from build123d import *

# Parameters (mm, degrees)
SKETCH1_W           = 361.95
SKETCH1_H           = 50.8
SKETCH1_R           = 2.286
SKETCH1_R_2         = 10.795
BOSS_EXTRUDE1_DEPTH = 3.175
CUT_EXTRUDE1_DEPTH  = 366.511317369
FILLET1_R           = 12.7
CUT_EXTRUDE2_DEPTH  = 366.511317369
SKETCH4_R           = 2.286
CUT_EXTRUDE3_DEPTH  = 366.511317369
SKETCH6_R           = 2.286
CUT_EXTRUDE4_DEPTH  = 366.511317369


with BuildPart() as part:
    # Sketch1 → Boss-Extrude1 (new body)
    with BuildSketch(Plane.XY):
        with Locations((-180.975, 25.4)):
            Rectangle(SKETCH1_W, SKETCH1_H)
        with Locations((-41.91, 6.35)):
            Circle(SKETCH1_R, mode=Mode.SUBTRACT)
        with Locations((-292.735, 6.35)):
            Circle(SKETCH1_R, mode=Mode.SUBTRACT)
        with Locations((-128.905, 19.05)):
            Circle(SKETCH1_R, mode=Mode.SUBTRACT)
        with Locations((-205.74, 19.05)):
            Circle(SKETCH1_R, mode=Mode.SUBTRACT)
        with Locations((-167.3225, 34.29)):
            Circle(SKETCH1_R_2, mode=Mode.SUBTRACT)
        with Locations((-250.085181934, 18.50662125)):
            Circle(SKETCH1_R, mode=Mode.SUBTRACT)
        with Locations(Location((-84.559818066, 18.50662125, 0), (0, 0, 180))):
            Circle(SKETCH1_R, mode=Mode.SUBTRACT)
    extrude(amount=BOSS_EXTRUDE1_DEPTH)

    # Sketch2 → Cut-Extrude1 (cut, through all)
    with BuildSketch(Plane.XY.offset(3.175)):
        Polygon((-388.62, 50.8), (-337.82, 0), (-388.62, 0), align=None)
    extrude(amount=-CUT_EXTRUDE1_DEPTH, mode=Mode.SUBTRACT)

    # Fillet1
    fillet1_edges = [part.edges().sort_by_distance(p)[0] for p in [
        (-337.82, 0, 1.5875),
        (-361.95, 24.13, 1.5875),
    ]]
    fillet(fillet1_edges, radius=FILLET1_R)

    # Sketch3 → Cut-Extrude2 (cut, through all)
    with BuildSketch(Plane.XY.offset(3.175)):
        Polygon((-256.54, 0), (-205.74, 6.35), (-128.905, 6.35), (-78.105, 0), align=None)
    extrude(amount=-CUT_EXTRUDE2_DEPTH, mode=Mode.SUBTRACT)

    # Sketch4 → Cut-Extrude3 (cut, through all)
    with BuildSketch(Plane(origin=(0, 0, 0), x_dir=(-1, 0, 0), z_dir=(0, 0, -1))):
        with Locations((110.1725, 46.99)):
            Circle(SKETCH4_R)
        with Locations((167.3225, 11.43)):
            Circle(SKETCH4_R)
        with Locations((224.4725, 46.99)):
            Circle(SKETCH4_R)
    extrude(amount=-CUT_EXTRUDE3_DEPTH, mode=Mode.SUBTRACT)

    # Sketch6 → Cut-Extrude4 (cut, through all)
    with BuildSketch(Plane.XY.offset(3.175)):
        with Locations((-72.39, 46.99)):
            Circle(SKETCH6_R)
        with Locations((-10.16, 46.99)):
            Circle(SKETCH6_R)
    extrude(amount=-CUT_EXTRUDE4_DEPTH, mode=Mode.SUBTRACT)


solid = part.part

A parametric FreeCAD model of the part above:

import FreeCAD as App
import Part
import Sketcher
from FreeCAD import Vector
Q = App.Units.Quantity


def edges_at(feature, points):
    """Names of the edges that pass closest to the given points."""
    edges = feature.Shape.Edges
    near = lambda p: min(range(len(edges)), key=lambda i: edges[i].distToShape(Part.Vertex(*p))[0])
    return sorted({f"Edge{near(p) + 1}" for p in points})


def add_polygon(sketch, points):
    """Adds a closed chain of lines whose ends are joined by coincident constraints."""
    first, n = sketch.GeometryCount, len(points)
    for a, b in zip(points, points[1:] + points[:1]):
        sketch.addGeometry(Part.LineSegment(App.Vector(*a, 0), App.Vector(*b, 0)), False)
    for i in range(n):
        sketch.addConstraint(Sketcher.Constraint("Coincident", first + i, 2, first + (i + 1) % n, 1))

doc = App.newDocument("Part")
body = doc.addObject("PartDesign::Body", "Body")

# Sketch on XY plane
sketch1 = body.newObject("Sketcher::SketchObject", "Sketch")
sketch1.AttachmentSupport = (doc.getObject("XY_Plane"), [""])
sketch1.MapMode = "FlatFace"
add_polygon(sketch1, [(-361.9, 50.8), (-361.9, 0), (0, 0), (0, 50.8)])  # lines 0-3
sketch1.addGeometry(Part.Circle(Vector(-292.7, 6.3, 0), Vector(0, 0, 1), 2.3), False)  # 4
sketch1.addGeometry(Part.Circle(Vector(-250.1, 18.5, 0), Vector(0, 0, 1), 2.3), False)  # 5
sketch1.addGeometry(Part.Circle(Vector(-205.7, 19.1, 0), Vector(0, 0, 1), 2.3), False)  # 6
sketch1.addGeometry(Part.Circle(Vector(-41.9, 6.3, 0), Vector(0, 0, 1), 2.3), False)  # 7
sketch1.addGeometry(Part.Circle(Vector(-128.9, 19.1, 0), Vector(0, 0, 1), 2.3), False)  # 8
sketch1.addGeometry(Part.Circle(Vector(-84.6, 18.5, 0), Vector(0, 0, 1), 2.3), False)  # 9
sketch1.addGeometry(Part.Circle(Vector(-167.3, 34.3, 0), Vector(0, 0, 1), 10.8), False)  # 10
sketch1.addConstraint([
    Sketcher.Constraint("Vertical", 0),
    Sketcher.Constraint("Horizontal", 1),
    Sketcher.Constraint("Vertical", 2),
    Sketcher.Constraint("Horizontal", 3),
    Sketcher.Constraint("Coincident", 1, 2, -1, 1),
    Sketcher.Constraint("Equal", 4, 5),
    Sketcher.Constraint("Equal", 5, 6),
    Sketcher.Constraint("Equal", 6, 7),
    Sketcher.Constraint("Equal", 7, 8),
    Sketcher.Constraint("Equal", 8, 9),
    Sketcher.Constraint("Horizontal", 4, 3, 7, 3),
    Sketcher.Constraint("Horizontal", 6, 3, 8, 3),
    Sketcher.Constraint("Horizontal", 5, 3, 9, 3),
    Sketcher.Constraint("Diameter", 4, Q("0.18 in")),
    Sketcher.Constraint("Diameter", 10, Q("0.85 in")),
    Sketcher.Constraint("DistanceY", 0, 2, 0, 1, Q("2 in")),
    Sketcher.Constraint("DistanceX", 1, 1, 1, 2, Q("14.25 in")),
    Sketcher.Constraint("DistanceX", 6, 3, -1, 1, Q("8.1 in")),
    Sketcher.Constraint("DistanceY", 4, 3, 6, 3, Q("0.5 in")),
    Sketcher.Constraint("DistanceY", 8, 3, 10, 3, Q("0.6 in")),
    Sketcher.Constraint("DistanceY", -1, 1, 4, 3, Q("0.25 in")),
    Sketcher.Constraint("DistanceX", 7, 3, -1, 1, Q("1.65 in")),
    Sketcher.Constraint("DistanceX", 4, 3, 8, 3, Q("6.45 in")),
    Sketcher.Constraint("DistanceX", 4, 3, -1, 1, Q("11.525 in")),
    Sketcher.Constraint("DistanceX", 10, 3, 7, 3, Q("4.9375 in")),
    Sketcher.Constraint("DistanceX", 5, 3, -1, 1, Q("250.085182 mm")),
    Sketcher.Constraint("DistanceY", -1, 1, 5, 3, Q("18.506621 mm")),
    Sketcher.Constraint("DistanceX", 9, 3, -1, 1, Q("84.559818 mm")),
])
pad1 = body.newObject("PartDesign::Pad", "Pad")
pad1.Profile = sketch1
pad1.Length = Q("0.125 in")

# Sketch on XY plane
sketch2 = body.newObject("Sketcher::SketchObject", "Sketch001")
sketch2.AttachmentSupport = (doc.getObject("XY_Plane"), [""])
sketch2.MapMode = "FlatFace"
sketch2.AttachmentOffset = App.Placement(Vector(0, 0, 0.125 * 25.4), App.Rotation())
add_polygon(sketch2, [(-338, 0), (-389, 51), (-389, 0)])  # lines 0-2
sketch2.addConstraint([
    Sketcher.Constraint("Vertical", 1),
    Sketcher.Constraint("Horizontal", 2),
    Sketcher.Constraint("PointOnObject", 1, 2, -1),
    Sketcher.Constraint("Equal", 2, 1),
    Sketcher.Constraint("DistanceX", 2, 1, 2, 2, Q("2 in")),
    Sketcher.Constraint("DistanceX", 0, 2, -1, 1, Q("15.3 in")),
])
pocket1 = body.newObject("PartDesign::Pocket", "Pocket")
pocket1.Profile = sketch2
pocket1.Type = "ThroughAll"
doc.recompute()

fillet = body.newObject("PartDesign::Fillet", "Fillet")
fillet.Base = (pocket1, edges_at(pocket1, [(-337.82, 0, 1.587), (-361.95, 24.13, 1.587)]))
fillet.Radius = Q("0.5 in")

# Sketch on XY plane
sketch3 = body.newObject("Sketcher::SketchObject", "Sketch002")
sketch3.AttachmentSupport = (doc.getObject("XY_Plane"), [""])
sketch3.MapMode = "FlatFace"
sketch3.AttachmentOffset = App.Placement(Vector(0, 0, 0.125 * 25.4), App.Rotation())
add_polygon(sketch3, [(-206, 6), (-257, 0), (-78, 0), (-129, 6)])  # lines 0-3
sketch3.addConstraint([
    Sketcher.Constraint("Horizontal", 1),
    Sketcher.Constraint("Horizontal", 3),
    Sketcher.Constraint("PointOnObject", 0, 2, -1),
    Sketcher.Constraint("Equal", 0, 2),
    Sketcher.Constraint("DistanceX", 2, 2, 1, 2, Q("2 in")),
    Sketcher.Constraint("DistanceX", 0, 2, -1, 1, Q("10.1 in")),
    Sketcher.Constraint("DistanceX", 1, 1, 1, 2, Q("7.025 in")),
    Sketcher.Constraint("DistanceY", -1, 1, 2, 2, Q("0.25 in")),
])
pocket2 = body.newObject("PartDesign::Pocket", "Pocket001")
pocket2.Profile = sketch3
pocket2.Type = "ThroughAll"

# Sketch on XY plane
sketch4 = body.newObject("Sketcher::SketchObject", "Sketch003")
sketch4.AttachmentSupport = (doc.getObject("XY_Plane"), [""])
sketch4.MapMode = "FlatFace"
sketch4.addGeometry([
    Part.Circle(Vector(-110.2, 47, 0), Vector(0, 0, 1), 2.3),
    Part.Circle(Vector(-167.3, 11.4, 0), Vector(0, 0, 1), 2.3),
    Part.Circle(Vector(-224.5, 47, 0), Vector(0, 0, 1), 2.3),
], False)
sketch4.addConstraint([
    Sketcher.Constraint("Equal", 0, 1),
    Sketcher.Constraint("Equal", 1, 2),
    Sketcher.Constraint("Horizontal", 0, 3, 2, 3),
    Sketcher.Constraint("Diameter", 0, Q("0.18 in")),
    Sketcher.Constraint("DistanceY", 1, 3, 0, 3, Q("1.4 in")),
    Sketcher.Constraint("DistanceX", 2, 3, 0, 3, Q("4.5 in")),
    Sketcher.Constraint("DistanceY", -1, 1, 0, 3, Q("1.85 in")),
    Sketcher.Constraint("DistanceX", 1, 3, 0, 3, Q("2.25 in")),
    Sketcher.Constraint("DistanceX", 0, 3, -1, 1, Q("4.3375 in")),
])
pocket3 = body.newObject("PartDesign::Pocket", "Pocket002")
pocket3.Profile = sketch4
pocket3.Type = "ThroughAll"
pocket3.Reversed = True

# Sketch on XY plane
sketch5 = body.newObject("Sketcher::SketchObject", "Sketch004")
sketch5.AttachmentSupport = (doc.getObject("XY_Plane"), [""])
sketch5.MapMode = "FlatFace"
sketch5.AttachmentOffset = App.Placement(Vector(0, 0, 0.125 * 25.4), App.Rotation())
sketch5.addGeometry([
    Part.Circle(Vector(-72.4, 47, 0), Vector(0, 0, 1), 2.3),
    Part.Circle(Vector(-10.2, 47, 0), Vector(0, 0, 1), 2.3),
], False)
sketch5.addConstraint([
    Sketcher.Constraint("Equal", 0, 1),
    Sketcher.Constraint("Horizontal", 0, 3, 1, 3),
    Sketcher.Constraint("Diameter", 0, Q("0.18 in")),
    Sketcher.Constraint("DistanceX", 1, 3, -1, 1, Q("0.4 in")),
    Sketcher.Constraint("DistanceX", 0, 3, -1, 1, Q("2.85 in")),
    Sketcher.Constraint("DistanceY", -1, 1, 0, 3, Q("1.85 in")),
])
pocket4 = body.newObject("PartDesign::Pocket", "Pocket003")
pocket4.Profile = sketch5
pocket4.Type = "ThroughAll"

doc.recompute()
